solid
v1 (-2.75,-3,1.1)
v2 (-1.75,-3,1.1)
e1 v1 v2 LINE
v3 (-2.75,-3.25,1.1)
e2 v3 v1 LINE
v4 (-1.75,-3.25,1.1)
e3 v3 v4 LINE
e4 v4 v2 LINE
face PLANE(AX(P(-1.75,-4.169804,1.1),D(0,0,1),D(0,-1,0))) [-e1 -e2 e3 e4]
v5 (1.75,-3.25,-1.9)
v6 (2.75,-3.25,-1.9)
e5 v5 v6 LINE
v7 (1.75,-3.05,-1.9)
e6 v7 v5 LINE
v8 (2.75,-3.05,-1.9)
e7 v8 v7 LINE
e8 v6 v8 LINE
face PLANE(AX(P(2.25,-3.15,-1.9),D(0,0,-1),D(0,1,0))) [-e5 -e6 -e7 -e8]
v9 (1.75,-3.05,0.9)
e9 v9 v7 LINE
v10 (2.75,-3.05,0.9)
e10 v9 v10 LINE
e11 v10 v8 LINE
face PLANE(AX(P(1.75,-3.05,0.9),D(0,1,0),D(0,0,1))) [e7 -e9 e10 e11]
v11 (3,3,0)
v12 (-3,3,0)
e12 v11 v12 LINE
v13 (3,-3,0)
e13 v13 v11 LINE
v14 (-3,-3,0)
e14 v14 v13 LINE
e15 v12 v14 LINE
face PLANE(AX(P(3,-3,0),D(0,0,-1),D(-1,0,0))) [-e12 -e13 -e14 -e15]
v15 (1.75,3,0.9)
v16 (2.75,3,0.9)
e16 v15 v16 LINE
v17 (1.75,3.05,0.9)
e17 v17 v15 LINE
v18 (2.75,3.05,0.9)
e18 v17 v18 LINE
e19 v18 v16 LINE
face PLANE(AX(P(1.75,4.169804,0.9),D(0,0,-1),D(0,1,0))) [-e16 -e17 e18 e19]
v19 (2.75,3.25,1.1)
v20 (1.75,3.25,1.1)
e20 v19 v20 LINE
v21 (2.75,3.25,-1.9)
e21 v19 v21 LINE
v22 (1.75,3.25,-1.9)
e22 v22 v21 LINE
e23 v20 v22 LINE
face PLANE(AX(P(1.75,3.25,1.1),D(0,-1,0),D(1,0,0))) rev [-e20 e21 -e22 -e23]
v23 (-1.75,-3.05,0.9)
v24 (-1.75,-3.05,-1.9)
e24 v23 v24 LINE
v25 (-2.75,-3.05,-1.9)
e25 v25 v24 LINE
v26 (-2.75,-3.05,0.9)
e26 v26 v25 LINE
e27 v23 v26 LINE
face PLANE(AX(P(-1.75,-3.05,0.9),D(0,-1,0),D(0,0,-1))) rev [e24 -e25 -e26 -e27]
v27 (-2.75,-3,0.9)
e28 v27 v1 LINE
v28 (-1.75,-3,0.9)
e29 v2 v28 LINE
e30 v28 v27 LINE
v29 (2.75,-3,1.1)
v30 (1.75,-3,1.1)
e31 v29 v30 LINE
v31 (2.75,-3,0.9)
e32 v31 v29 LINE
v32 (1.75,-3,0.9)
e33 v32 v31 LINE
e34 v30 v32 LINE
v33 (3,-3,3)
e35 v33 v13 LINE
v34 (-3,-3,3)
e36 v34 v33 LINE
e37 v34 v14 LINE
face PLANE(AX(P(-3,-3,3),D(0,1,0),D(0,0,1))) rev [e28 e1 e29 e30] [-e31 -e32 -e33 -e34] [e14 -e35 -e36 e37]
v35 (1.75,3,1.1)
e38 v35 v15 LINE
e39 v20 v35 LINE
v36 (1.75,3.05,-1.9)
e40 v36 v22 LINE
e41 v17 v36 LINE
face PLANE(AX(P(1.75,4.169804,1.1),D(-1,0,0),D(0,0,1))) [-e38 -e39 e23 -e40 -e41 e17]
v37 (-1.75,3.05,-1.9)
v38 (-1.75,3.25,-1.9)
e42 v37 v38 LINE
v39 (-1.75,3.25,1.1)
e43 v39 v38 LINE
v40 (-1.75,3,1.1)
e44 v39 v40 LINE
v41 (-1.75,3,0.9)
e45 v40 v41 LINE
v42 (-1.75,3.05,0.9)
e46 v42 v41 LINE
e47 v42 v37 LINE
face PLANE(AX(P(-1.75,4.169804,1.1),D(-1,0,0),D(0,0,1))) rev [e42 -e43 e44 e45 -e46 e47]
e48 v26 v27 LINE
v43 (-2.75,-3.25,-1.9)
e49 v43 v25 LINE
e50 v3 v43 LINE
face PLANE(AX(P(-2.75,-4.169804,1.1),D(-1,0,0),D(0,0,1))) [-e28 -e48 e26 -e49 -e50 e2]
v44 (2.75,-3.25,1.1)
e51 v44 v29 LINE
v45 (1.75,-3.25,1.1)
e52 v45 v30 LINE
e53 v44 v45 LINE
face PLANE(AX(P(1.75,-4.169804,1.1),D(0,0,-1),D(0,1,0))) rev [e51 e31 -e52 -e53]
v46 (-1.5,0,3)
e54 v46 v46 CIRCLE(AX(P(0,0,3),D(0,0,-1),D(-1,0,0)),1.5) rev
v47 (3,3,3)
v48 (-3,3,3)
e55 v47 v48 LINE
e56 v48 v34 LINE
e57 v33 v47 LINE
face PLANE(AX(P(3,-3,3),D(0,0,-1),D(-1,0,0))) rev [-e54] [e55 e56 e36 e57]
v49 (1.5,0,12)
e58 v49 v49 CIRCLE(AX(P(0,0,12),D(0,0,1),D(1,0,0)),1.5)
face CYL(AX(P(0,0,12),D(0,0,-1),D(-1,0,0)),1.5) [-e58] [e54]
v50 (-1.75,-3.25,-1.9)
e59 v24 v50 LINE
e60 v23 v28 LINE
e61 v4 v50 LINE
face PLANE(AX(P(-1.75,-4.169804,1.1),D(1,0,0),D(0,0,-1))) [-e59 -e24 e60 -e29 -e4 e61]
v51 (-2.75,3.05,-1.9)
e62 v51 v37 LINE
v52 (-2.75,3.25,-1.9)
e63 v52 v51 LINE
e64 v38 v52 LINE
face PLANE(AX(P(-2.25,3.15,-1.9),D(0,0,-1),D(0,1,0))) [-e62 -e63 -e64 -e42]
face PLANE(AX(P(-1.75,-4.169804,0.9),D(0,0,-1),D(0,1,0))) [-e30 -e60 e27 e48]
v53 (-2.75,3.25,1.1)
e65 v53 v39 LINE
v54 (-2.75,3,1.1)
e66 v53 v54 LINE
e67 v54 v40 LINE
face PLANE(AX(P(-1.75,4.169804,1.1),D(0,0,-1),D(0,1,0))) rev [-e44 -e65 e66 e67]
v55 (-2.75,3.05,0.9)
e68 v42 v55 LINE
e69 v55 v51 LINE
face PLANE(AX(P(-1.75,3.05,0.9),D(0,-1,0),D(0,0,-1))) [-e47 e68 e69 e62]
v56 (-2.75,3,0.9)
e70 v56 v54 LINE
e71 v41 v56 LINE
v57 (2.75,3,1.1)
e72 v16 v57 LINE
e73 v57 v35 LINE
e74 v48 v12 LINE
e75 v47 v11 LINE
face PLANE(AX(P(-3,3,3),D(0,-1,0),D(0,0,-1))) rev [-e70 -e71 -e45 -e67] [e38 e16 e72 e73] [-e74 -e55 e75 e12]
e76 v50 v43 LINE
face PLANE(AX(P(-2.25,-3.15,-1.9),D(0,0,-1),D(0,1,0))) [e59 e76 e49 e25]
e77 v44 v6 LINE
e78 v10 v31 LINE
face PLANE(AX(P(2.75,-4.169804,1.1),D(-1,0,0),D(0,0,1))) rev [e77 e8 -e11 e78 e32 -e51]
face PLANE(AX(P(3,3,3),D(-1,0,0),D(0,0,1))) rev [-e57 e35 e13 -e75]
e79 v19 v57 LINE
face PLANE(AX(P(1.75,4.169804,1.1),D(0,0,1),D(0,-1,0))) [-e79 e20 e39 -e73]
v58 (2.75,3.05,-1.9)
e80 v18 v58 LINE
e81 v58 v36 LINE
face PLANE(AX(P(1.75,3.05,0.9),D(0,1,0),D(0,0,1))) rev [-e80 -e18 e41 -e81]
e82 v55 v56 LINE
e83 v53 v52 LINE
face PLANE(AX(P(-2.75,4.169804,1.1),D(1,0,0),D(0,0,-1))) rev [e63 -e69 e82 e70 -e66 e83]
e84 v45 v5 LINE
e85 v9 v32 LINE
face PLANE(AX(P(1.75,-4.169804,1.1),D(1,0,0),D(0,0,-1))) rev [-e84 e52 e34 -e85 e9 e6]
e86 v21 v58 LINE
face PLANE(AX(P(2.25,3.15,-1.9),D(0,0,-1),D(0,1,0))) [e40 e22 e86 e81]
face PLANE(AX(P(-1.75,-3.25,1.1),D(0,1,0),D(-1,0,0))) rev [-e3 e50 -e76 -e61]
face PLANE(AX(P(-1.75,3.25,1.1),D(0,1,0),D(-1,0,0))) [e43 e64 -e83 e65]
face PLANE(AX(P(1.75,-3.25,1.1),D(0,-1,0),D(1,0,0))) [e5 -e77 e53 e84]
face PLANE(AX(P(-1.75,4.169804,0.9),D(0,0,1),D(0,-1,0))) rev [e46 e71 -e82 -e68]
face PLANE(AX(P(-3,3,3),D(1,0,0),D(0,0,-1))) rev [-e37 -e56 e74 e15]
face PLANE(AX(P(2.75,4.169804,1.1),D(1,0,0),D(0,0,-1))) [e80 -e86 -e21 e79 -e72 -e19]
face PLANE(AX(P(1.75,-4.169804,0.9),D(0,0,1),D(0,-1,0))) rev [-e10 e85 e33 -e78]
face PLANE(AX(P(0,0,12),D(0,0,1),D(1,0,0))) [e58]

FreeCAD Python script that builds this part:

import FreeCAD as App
import Part
import Sketcher
from FreeCAD import Vector
Q = App.Units.Quantity


def add_polygon(sketch, points):
    """Adds a closed chain of lines whose ends are joined by coincident constraints."""
    first, n = sketch.GeometryCount, len(points)
    for a, b in zip(points, points[1:] + points[:1]):
        sketch.addGeometry(Part.LineSegment(App.Vector(*a, 0), App.Vector(*b, 0)), False)
    for i in range(n):
        sketch.addConstraint(Sketcher.Constraint("Coincident", first + i, 2, first + (i + 1) % n, 1))

doc = App.newDocument("Part")
body = doc.addObject("PartDesign::Body", "Body")

# Sketch on XY plane
sketch1 = body.newObject("Sketcher::SketchObject", "Sketch")
sketch1.AttachmentSupport = (doc.getObject("XY_Plane"), [""])
sketch1.MapMode = "FlatFace"
add_polygon(sketch1, [(-3, 3), (-3, -3), (3, -3), (3, 3)])  # lines 0-3
sketch1.addConstraint(Sketcher.Constraint("Vertical", 0))
sketch1.addConstraint(Sketcher.Constraint("Horizontal", 1))
sketch1.addConstraint(Sketcher.Constraint("Vertical", 2))
sketch1.addConstraint(Sketcher.Constraint("Horizontal", 3))
sketch1.addConstraint(Sketcher.Constraint("Symmetric", 0, 2, 2, 2, -1, 1))
sketch1.addConstraint(Sketcher.Constraint("Equal", 3, 0))
sketch1.addConstraint(Sketcher.Constraint("DistanceX", 1, 1, 1, 2, Q("6 mm")))
pad1 = body.newObject("PartDesign::Pad", "Pad")
pad1.Profile = sketch1
pad1.Length = 3

# Sketch on XY plane
sketch2 = body.newObject("Sketcher::SketchObject", "Sketch001")
sketch2.AttachmentSupport = (doc.getObject("XY_Plane"), [""])
sketch2.MapMode = "FlatFace"
sketch2.AttachmentOffset = App.Placement(Vector(0, 0, 3), App.Rotation())
sketch2.addGeometry(Part.Circle(Vector(0, 0, 0), Vector(0, 0, 1), 1.5), False)
sketch2.addConstraint(Sketcher.Constraint("Coincident", 0, 3, -1, 1))
sketch2.addConstraint(Sketcher.Constraint("Diameter", 0, Q("3 mm")))
pad2 = body.newObject("PartDesign::Pad", "Pad001")
pad2.Profile = sketch2
pad2.Length = 9

# Sketch on XZ plane
sketch3 = body.newObject("Sketcher::SketchObject", "Sketch002")
sketch3.AttachmentSupport = (doc.getObject("XZ_Plane"), [""])
sketch3.MapMode = "FlatFace"
sketch3.AttachmentOffset = App.Placement(Vector(0, 0, 3), App.Rotation())
add_polygon(sketch3, [(1.75, 1.1), (1.75, 0.9), (2.75, 0.9), (2.75, 1.1)])  # lines 0-3
sketch3.addConstraint(Sketcher.Constraint("Vertical", 0))
sketch3.addConstraint(Sketcher.Constraint("Horizontal", 1))
sketch3.addConstraint(Sketcher.Constraint("Vertical", 2))
sketch3.addConstraint(Sketcher.Constraint("Horizontal", 3))
sketch3.addConstraint(Sketcher.Constraint("DistanceX", 1, 1, 1, 2, Q("1 mm")))
sketch3.addConstraint(Sketcher.Constraint("DistanceY", 0, 2, 0, 1, Q("0.2 mm")))
sketch3.addConstraint(Sketcher.Constraint("DistanceY", -1, 1, 0, 2, Q("0.9 mm")))
sketch3.addConstraint(Sketcher.Constraint("DistanceX", -1, 1, 0, 2, Q("1.75 mm")))

# Sketch on YZ plane
sketch4 = body.newObject("Sketcher::SketchObject", "Sketch003")
sketch4.AttachmentSupport = (doc.getObject("YZ_Plane"), [""])
sketch4.MapMode = "FlatFace"
sketch4.AttachmentOffset = App.Placement(Vector(0, 0, 2.25), App.Rotation())
sketch4.addGeometry(Part.LineSegment(Vector(-3, 1.1, 0), Vector(-3.25, 1.1, 0)), False)
sketch4.addGeometry(Part.LineSegment(Vector(-3.25, 1.1, 0), Vector(-3.25, -1.9, 0)), False)
sketch4.addConstraint(Sketcher.Constraint("Coincident", 0, 2, 1, 1))
sketch4.addConstraint(Sketcher.Constraint("Horizontal", 0))
sketch4.addConstraint(Sketcher.Constraint("Vertical", 1))
sketch4.addConstraint(Sketcher.Constraint("DistanceY", 1, 2, 1, 1, Q("3 mm")))
sketch4.addConstraint(Sketcher.Constraint("DistanceX", 0, 1, -1, 1, Q("3 mm")))
sketch4.addConstraint(Sketcher.Constraint("DistanceX", 0, 2, 0, 1, Q("0.25 mm")))
sketch4.addConstraint(Sketcher.Constraint("DistanceY", -1, 1, 0, 1, Q("1.1 mm")))
doc.recompute()

additivepipe = body.newObject("PartDesign::AdditivePipe", "AdditivePipe")
additivepipe.Profile = sketch3
additivepipe.Spine = (sketch4, ["Edge1", "Edge2"])
additivepipe.Transition = "Right corner"
doc.recompute()

mirrored = body.newObject("PartDesign::Mirrored", "Mirrored")
mirrored.Originals = [additivepipe]
mirrored.MirrorPlane = (doc.getObject("YZ_Plane"), [""])
body.Tip = mirrored
doc.recompute()

mirrored2 = body.newObject("PartDesign::Mirrored", "Mirrored001")
mirrored2.Originals = [additivepipe]
mirrored2.MirrorPlane = (doc.getObject("XZ_Plane"), [""])
body.Tip = mirrored2

# Sketch on XZ plane
sketch5 = body.newObject("Sketcher::SketchObject", "Sketch004")
sketch5.AttachmentSupport = (doc.getObject("XZ_Plane"), [""])
sketch5.MapMode = "FlatFace"
sketch5.AttachmentOffset = App.Placement(Vector(0, 0, -3), App.Rotation())
add_polygon(sketch5, [(-1.75, 1.1), (-1.75, 0.9), (-2.75, 0.9), (-2.75, 1.1)])  # lines 0-3
sketch5.addConstraint(Sketcher.Constraint("Vertical", 0))
sketch5.addConstraint(Sketcher.Constraint("Horizontal", 1))
sketch5.addConstraint(Sketcher.Constraint("Vertical", 2))
sketch5.addConstraint(Sketcher.Constraint("Horizontal", 3))
sketch5.addConstraint(Sketcher.Constraint("DistanceX", 1, 2, 1, 1, Q("1 mm")))
sketch5.addConstraint(Sketcher.Constraint("DistanceY", 0, 2, 0, 1, Q("0.2 mm")))
sketch5.addConstraint(Sketcher.Constraint("DistanceY", -1, 1, 0, 2, Q("0.9 mm")))
sketch5.addConstraint(Sketcher.Constraint("DistanceX", 0, 2, -1, 1, Q("1.75 mm")))

# Sketch on YZ plane
sketch6 = body.newObject("Sketcher::SketchObject", "Sketch005")
sketch6.AttachmentSupport = (doc.getObject("YZ_Plane"), [""])
sketch6.MapMode = "FlatFace"
sketch6.AttachmentOffset = App.Placement(Vector(0, 0, -2.25), App.Rotation())
sketch6.addGeometry(Part.LineSegment(Vector(3, 1.1, 0), Vector(3.25, 1.1, 0)), False)
sketch6.addGeometry(Part.LineSegment(Vector(3.25, 1.1, 0), Vector(3.25, -1.9, 0)), False)
sketch6.addConstraint(Sketcher.Constraint("Coincident", 0, 2, 1, 1))
sketch6.addConstraint(Sketcher.Constraint("Horizontal", 0))
sketch6.addConstraint(Sketcher.Constraint("Vertical", 1))
sketch6.addConstraint(Sketcher.Constraint("DistanceY", 1, 2, 1, 1, Q("3 mm")))
sketch6.addConstraint(Sketcher.Constraint("DistanceX", -1, 1, 0, 1, Q("3 mm")))
sketch6.addConstraint(Sketcher.Constraint("DistanceX", 0, 1, 0, 2, Q("0.25 mm")))
sketch6.addConstraint(Sketcher.Constraint("DistanceY", -1, 1, 0, 1, Q("1.1 mm")))
doc.recompute()

additivepipe2 = body.newObject("PartDesign::AdditivePipe", "AdditivePipe001")
additivepipe2.Profile = sketch5
additivepipe2.Spine = (sketch6, ["Edge1", "Edge2"])
additivepipe2.Transition = "Right corner"

doc.recompute()
